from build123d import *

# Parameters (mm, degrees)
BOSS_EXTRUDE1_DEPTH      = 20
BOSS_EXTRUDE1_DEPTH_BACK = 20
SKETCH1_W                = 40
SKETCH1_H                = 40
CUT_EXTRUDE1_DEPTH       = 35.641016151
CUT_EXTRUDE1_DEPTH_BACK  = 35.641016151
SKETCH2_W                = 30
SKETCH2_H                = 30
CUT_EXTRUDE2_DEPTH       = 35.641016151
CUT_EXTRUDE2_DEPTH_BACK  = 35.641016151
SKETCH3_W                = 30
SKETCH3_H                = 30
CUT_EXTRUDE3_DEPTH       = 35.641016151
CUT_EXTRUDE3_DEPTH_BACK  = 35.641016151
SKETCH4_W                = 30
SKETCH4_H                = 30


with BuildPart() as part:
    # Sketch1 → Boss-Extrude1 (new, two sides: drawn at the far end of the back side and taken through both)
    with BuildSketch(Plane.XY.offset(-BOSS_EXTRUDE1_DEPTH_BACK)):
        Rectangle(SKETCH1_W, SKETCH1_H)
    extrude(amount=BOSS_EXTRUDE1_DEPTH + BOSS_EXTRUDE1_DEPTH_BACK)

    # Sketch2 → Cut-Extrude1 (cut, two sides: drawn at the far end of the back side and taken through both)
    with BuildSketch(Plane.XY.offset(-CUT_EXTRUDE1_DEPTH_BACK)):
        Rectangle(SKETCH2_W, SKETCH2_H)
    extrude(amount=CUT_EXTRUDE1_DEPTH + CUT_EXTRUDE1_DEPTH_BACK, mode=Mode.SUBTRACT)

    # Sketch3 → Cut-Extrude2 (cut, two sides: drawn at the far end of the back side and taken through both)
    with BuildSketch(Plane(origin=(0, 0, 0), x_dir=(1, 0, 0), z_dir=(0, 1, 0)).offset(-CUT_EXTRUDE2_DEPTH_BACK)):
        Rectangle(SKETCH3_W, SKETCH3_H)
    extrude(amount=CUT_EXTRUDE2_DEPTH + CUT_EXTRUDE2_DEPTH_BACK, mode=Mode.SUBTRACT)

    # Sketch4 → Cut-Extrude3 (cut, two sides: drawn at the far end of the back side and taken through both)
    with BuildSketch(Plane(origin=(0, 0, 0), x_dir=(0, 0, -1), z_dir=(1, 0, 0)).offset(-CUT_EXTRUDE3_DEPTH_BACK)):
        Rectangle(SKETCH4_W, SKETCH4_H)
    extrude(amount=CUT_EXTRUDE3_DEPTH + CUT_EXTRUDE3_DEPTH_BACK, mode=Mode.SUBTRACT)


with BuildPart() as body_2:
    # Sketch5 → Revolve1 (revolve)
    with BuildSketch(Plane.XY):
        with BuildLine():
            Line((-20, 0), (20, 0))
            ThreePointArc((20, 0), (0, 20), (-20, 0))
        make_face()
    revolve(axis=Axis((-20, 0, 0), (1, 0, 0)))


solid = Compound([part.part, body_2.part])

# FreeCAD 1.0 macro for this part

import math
import FreeCAD as App
import Part
import Sketcher

doc = App.newDocument("Part")
params = doc.addObject("Spreadsheet::Sheet", "Params")
for row, (alias, value) in enumerate([
    ("sketch1_width", "40 mm"),
    ("pad1_length", "20 mm"),
    ("pad1_length2", "20 mm"),
    ("sketch2_width", "30 mm"),
    ("sketch3_width", "30 mm"),
    ("sketch4_width", "30 mm"),
    ("sketch5_radius", "20 mm"),
    ("revolution_angle", "360 deg"),
], start=1):
    params.set(f"A{row}", alias)
    params.set(f"B{row}", "=" + value)
    params.setAlias(f"B{row}", alias)

body = doc.addObject("PartDesign::Body", "Body")

sketch1 = doc.addObject("Sketcher::SketchObject", "Sketch")
body.addObject(sketch1)
sketch1.AttachmentSupport = (doc.XY_Plane, [""])
sketch1.MapMode = "FlatFace"
sketch1.addGeometry([
    Part.LineSegment(App.Vector(-20, 20, 0), App.Vector(-20, -20, 0)),
    Part.LineSegment(App.Vector(-20, -20, 0), App.Vector(20, -20, 0)),
    Part.LineSegment(App.Vector(20, -20, 0), App.Vector(20, 20, 0)),
    Part.LineSegment(App.Vector(20, 20, 0), App.Vector(-20, 20, 0)),
], False)
sketch1.addConstraint([
    Sketcher.Constraint("Coincident", 0, 2, 1, 1),
    Sketcher.Constraint("Coincident", 1, 2, 2, 1),
    Sketcher.Constraint("Coincident", 2, 2, 3, 1),
    Sketcher.Constraint("Coincident", 3, 2, 0, 1),
    Sketcher.Constraint("Vertical", 0),
    Sketcher.Constraint("Horizontal", 1),
    Sketcher.Constraint("Vertical", 2),
    Sketcher.Constraint("Horizontal", 3),
    Sketcher.Constraint("Symmetric", 0, 2, 2, 2, -1, 1),
    Sketcher.Constraint("Equal", 3, 0),
    Sketcher.Constraint("DistanceX", 1, 1, 1, 2, 40.0),
])
sketch1.setExpression("Constraints[10]", "Params.sketch1_width")
pad1 = doc.addObject("PartDesign::Pad", "Pad")
body.addObject(pad1)
pad1.Profile = sketch1
pad1.Type = "TwoLengths"
pad1.setExpression("Length", "Params.pad1_length")
pad1.setExpression("Length2", "Params.pad1_length2")

sketch2 = doc.addObject("Sketcher::SketchObject", "Sketch001")
body.addObject(sketch2)
sketch2.AttachmentSupport = (doc.XY_Plane, [""])
sketch2.MapMode = "FlatFace"
sketch2.addGeometry([
    Part.LineSegment(App.Vector(-15, 15, 0), App.Vector(-15, -15, 0)),
    Part.LineSegment(App.Vector(-15, -15, 0), App.Vector(15, -15, 0)),
    Part.LineSegment(App.Vector(15, -15, 0), App.Vector(15, 15, 0)),
    Part.LineSegment(App.Vector(15, 15, 0), App.Vector(-15, 15, 0)),
], False)
sketch2.addConstraint([
    Sketcher.Constraint("Coincident", 0, 2, 1, 1),
    Sketcher.Constraint("Coincident", 1, 2, 2, 1),
    Sketcher.Constraint("Coincident", 2, 2, 3, 1),
    Sketcher.Constraint("Coincident", 3, 2, 0, 1),
    Sketcher.Constraint("Vertical", 0),
    Sketcher.Constraint("Horizontal", 1),
    Sketcher.Constraint("Vertical", 2),
    Sketcher.Constraint("Horizontal", 3),
    Sketcher.Constraint("Symmetric", 0, 2, 2, 2, -1, 1),
    Sketcher.Constraint("Equal", 3, 0),
    Sketcher.Constraint("DistanceX", 1, 1, 1, 2, 30.0),
])
sketch2.setExpression("Constraints[10]", "Params.sketch2_width")
pocket1 = doc.addObject("PartDesign::Pocket", "Pocket")
body.addObject(pocket1)
pocket1.Profile = sketch2
pocket1.Type = "ThroughAll"
pocket1.Midplane = True

sketch3 = doc.addObject("Sketcher::SketchObject", "Sketch002")
body.addObject(sketch3)
sketch3.AttachmentSupport = (doc.XZ_Plane, [""])
sketch3.MapMode = "FlatFace"
sketch3.addGeometry([
    Part.LineSegment(App.Vector(-15, -15, 0), App.Vector(-15, 15, 0)),
    Part.LineSegment(App.Vector(-15, 15, 0), App.Vector(15, 15, 0)),
    Part.LineSegment(App.Vector(15, 15, 0), App.Vector(15, -15, 0)),
    Part.LineSegment(App.Vector(15, -15, 0), App.Vector(-15, -15, 0)),
], False)
sketch3.addConstraint([
    Sketcher.Constraint("Coincident", 0, 2, 1, 1),
    Sketcher.Constraint("Coincident", 1, 2, 2, 1),
    Sketcher.Constraint("Coincident", 2, 2, 3, 1),
    Sketcher.Constraint("Coincident", 3, 2, 0, 1),
    Sketcher.Constraint("Vertical", 0),
    Sketcher.Constraint("Horizontal", 1),
    Sketcher.Constraint("Vertical", 2),
    Sketcher.Constraint("Horizontal", 3),
    Sketcher.Constraint("Symmetric", 0, 2, 2, 2, -1, 1),
    Sketcher.Constraint("Equal", 3, 0),
    Sketcher.Constraint("DistanceX", 1, 1, 1, 2, 30.0),
])
sketch3.setExpression("Constraints[10]", "Params.sketch3_width")
pocket2 = doc.addObject("PartDesign::Pocket", "Pocket001")
body.addObject(pocket2)
pocket2.Profile = sketch3
pocket2.Type = "ThroughAll"
pocket2.Midplane = True

sketch4 = doc.addObject("Sketcher::SketchObject", "Sketch003")
body.addObject(sketch4)
sketch4.AttachmentSupport = (doc.YZ_Plane, [""])
sketch4.MapMode = "FlatFace"
sketch4.addGeometry([
    Part.LineSegment(App.Vector(15, 15, 0), App.Vector(-15, 15, 0)),
    Part.LineSegment(App.Vector(-15, 15, 0), App.Vector(-15, -15, 0)),
    Part.LineSegment(App.Vector(-15, -15, 0), App.Vector(15, -15, 0)),
    Part.LineSegment(App.Vector(15, -15, 0), App.Vector(15, 15, 0)),
], False)
sketch4.addConstraint([
    Sketcher.Constraint("Coincident", 0, 2, 1, 1),
    Sketcher.Constraint("Coincident", 1, 2, 2, 1),
    Sketcher.Constraint("Coincident", 2, 2, 3, 1),
    Sketcher.Constraint("Coincident", 3, 2, 0, 1),
    Sketcher.Constraint("Horizontal", 0),
    Sketcher.Constraint("Vertical", 1),
    Sketcher.Constraint("Horizontal", 2),
    Sketcher.Constraint("Vertical", 3),
    Sketcher.Constraint("Symmetric", 0, 2, 2, 2, -1, 1),
    Sketcher.Constraint("Equal", 2, 1),
    Sketcher.Constraint("DistanceX", 0, 2, 0, 1, 30.0),
])
sketch4.setExpression("Constraints[10]", "Params.sketch4_width")
pocket3 = doc.addObject("PartDesign::Pocket", "Pocket002")
body.addObject(pocket3)
pocket3.Profile = sketch4
pocket3.Type = "ThroughAll"
pocket3.Midplane = True
body2 = doc.addObject("PartDesign::Body", "Body001")

sketch5 = doc.addObject("Sketcher::SketchObject", "Sketch004")
body2.addObject(sketch5)
sketch5.AttachmentSupport = (doc.getObject("XY_Plane001"), [""])
sketch5.MapMode = "FlatFace"
sketch5.addGeometry([
    Part.LineSegment(App.Vector(-20, 0, 0), App.Vector(20, 0, 0)),
    Part.ArcOfCircle(Part.Circle(App.Vector(0, 0, 0), App.Vector(0, 0, 1), 20), math.radians(0), math.radians(180)),
], False)
sketch5.addConstraint([
    Sketcher.Constraint("Coincident", 0, 1, 1, 2),
    Sketcher.Constraint("Coincident", 1, 1, 0, 2),
    Sketcher.Constraint("Horizontal", 0),
    Sketcher.Constraint("Coincident", 1, 3, -1, 1),
    Sketcher.Constraint("PointOnObject", 0, 1, -1),
    Sketcher.Constraint("Radius", 1, 20.0),
])
sketch5.setExpression("Constraints[5]", "Params.sketch5_radius")
revolution = doc.addObject("PartDesign::Revolution", "Revolution")
body2.addObject(revolution)
revolution.Profile = sketch5
revolution.ReferenceAxis = (sketch5, ["H_Axis"])
revolution.setExpression("Angle", "Params.revolution_angle")

doc.recompute()
